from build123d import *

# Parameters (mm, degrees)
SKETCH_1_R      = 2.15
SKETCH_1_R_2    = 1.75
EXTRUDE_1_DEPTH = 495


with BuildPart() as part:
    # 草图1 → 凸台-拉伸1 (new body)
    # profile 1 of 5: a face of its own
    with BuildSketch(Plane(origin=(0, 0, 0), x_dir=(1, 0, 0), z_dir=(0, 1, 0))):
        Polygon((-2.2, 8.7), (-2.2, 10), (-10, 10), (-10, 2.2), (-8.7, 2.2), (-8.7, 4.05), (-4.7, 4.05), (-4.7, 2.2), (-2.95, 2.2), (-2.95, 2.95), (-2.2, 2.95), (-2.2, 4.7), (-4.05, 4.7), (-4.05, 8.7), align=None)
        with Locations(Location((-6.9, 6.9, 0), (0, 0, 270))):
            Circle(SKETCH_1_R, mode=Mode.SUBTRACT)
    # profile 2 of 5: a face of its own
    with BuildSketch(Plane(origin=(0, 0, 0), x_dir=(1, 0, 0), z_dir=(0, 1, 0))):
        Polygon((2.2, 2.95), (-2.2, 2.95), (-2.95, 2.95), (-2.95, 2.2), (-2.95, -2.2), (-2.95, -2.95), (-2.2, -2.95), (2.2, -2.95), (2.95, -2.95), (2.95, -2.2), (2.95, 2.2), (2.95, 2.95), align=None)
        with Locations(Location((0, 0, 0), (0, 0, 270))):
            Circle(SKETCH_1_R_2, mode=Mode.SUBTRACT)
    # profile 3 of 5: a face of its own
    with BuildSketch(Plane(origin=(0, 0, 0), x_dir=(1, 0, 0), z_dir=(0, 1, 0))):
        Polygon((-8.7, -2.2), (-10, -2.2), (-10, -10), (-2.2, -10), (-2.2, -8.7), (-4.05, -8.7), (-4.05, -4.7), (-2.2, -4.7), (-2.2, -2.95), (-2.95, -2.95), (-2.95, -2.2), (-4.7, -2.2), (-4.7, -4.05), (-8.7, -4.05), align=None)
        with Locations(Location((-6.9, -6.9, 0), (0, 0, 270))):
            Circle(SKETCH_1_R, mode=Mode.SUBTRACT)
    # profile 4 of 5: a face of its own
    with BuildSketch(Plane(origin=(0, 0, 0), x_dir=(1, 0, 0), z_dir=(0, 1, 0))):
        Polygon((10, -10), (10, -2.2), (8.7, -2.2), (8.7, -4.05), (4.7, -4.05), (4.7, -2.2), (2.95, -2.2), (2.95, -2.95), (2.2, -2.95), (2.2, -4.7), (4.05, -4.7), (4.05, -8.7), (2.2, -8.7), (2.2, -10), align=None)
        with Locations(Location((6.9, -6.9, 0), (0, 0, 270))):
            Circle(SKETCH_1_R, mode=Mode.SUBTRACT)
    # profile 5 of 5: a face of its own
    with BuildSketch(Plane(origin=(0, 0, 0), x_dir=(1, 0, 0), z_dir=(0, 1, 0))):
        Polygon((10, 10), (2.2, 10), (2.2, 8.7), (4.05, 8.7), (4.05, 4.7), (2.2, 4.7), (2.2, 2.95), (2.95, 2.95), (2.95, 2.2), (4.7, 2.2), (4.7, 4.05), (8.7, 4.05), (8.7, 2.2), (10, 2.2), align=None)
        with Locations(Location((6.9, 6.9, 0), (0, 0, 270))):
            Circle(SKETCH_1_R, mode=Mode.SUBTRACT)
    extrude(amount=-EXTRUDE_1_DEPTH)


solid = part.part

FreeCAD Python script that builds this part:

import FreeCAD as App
import Part
import Sketcher
Q = App.Units.Quantity

doc = App.newDocument("Part")
body = doc.addObject("PartDesign::Body", "Body")

# Sketch on XZ plane
sketch1 = body.newObject("Sketcher::SketchObject", "Sketch")
sketch1.AttachmentSupport = (doc.getObject("XZ_Plane"), [""])
sketch1.MapMode = "FlatFace"
sketch1.addGeometry(Part.LineSegment(App.Vector(-2.2, -8.7, 0), App.Vector(-2.2, -10, 0)), False)
sketch1.addGeometry(Part.LineSegment(App.Vector(-2.2, -10, 0), App.Vector(-10, -10, 0)), False)
sketch1.addGeometry(Part.LineSegment(App.Vector(-10, -10, 0), App.Vector(-10, -2.2, 0)), False)
sketch1.addGeometry(Part.LineSegment(App.Vector(-10, -2.2, 0), App.Vector(-8.7, -2.2, 0)), False)
sketch1.addGeometry(Part.LineSegment(App.Vector(-8.7, -2.2, 0), App.Vector(-8.7, -4, 0)), False)
sketch1.addGeometry(Part.LineSegment(App.Vector(-8.7, -4, 0), App.Vector(-4.7, -4, 0)), False)
sketch1.addGeometry(Part.LineSegment(App.Vector(-4.7, -4, 0), App.Vector(-4.7, -2.2, 0)), False)
sketch1.addGeometry(Part.LineSegment(App.Vector(-4.7, -2.2, 0), App.Vector(-3, -2.2, 0)), False)
sketch1.addGeometry(Part.LineSegment(App.Vector(-3, -2.2, 0), App.Vector(-3, 2.2, 0)), False)
sketch1.addGeometry(Part.LineSegment(App.Vector(-3, 2.2, 0), App.Vector(-4.7, 2.2, 0)), False)
sketch1.addGeometry(Part.LineSegment(App.Vector(-4.7, 2.2, 0), App.Vector(-4.7, 4, 0)), False)
sketch1.addGeometry(Part.LineSegment(App.Vector(-4.7, 4, 0), App.Vector(-8.7, 4, 0)), False)
sketch1.addGeometry(Part.LineSegment(App.Vector(-8.7, 4, 0), App.Vector(-8.7, 2.2, 0)), False)
sketch1.addGeometry(Part.LineSegment(App.Vector(-8.7, 2.2, 0), App.Vector(-10, 2.2, 0)), False)
sketch1.addGeometry(Part.LineSegment(App.Vector(-10, 2.2, 0), App.Vector(-10, 10, 0)), False)
sketch1.addGeometry(Part.LineSegment(App.Vector(-10, 10, 0), App.Vector(-2.2, 10, 0)), False)
sketch1.addGeometry(Part.LineSegment(App.Vector(-2.2, 10, 0), App.Vector(-2.2, 8.7, 0)), False)
sketch1.addGeometry(Part.LineSegment(App.Vector(-2.2, 8.7, 0), App.Vector(-4, 8.7, 0)), False)
sketch1.addGeometry(Part.LineSegment(App.Vector(-4, 8.7, 0), App.Vector(-4, 4.7, 0)), False)
sketch1.addGeometry(Part.LineSegment(App.Vector(-4, 4.7, 0), App.Vector(-2.2, 4.7, 0)), False)
sketch1.addGeometry(Part.LineSegment(App.Vector(-2.2, 4.7, 0), App.Vector(-2.2, 3, 0)), False)
sketch1.addGeometry(Part.LineSegment(App.Vector(-2.2, 3, 0), App.Vector(2.2, 3, 0)), False)
sketch1.addGeometry(Part.LineSegment(App.Vector(2.2, 3, 0), App.Vector(2.2, 4.7, 0)), False)
sketch1.addGeometry(Part.LineSegment(App.Vector(2.2, 4.7, 0), App.Vector(4, 4.7, 0)), False)
sketch1.addGeometry(Part.LineSegment(App.Vector(4, 4.7, 0), App.Vector(4, 8.7, 0)), False)
sketch1.addGeometry(Part.LineSegment(App.Vector(4, 8.7, 0), App.Vector(2.2, 8.7, 0)), False)
sketch1.addGeometry(Part.LineSegment(App.Vector(2.2, 8.7, 0), App.Vector(2.2, 10, 0)), False)
sketch1.addGeometry(Part.LineSegment(App.Vector(2.2, 10, 0), App.Vector(10, 10, 0)), False)
sketch1.addGeometry(Part.LineSegment(App.Vector(10, 10, 0), App.Vector(10, 2.2, 0)), False)
sketch1.addGeometry(Part.LineSegment(App.Vector(10, 2.2, 0), App.Vector(8.7, 2.2, 0)), False)
sketch1.addGeometry(Part.LineSegment(App.Vector(8.7, 2.2, 0), App.Vector(8.7, 4, 0)), False)
sketch1.addGeometry(Part.LineSegment(App.Vector(8.7, 4, 0), App.Vector(4.7, 4, 0)), False)
sketch1.addGeometry(Part.LineSegment(App.Vector(4.7, 4, 0), App.Vector(4.7, 2.2, 0)), False)
sketch1.addGeometry(Part.LineSegment(App.Vector(4.7, 2.2, 0), App.Vector(3, 2.2, 0)), False)
sketch1.addGeometry(Part.LineSegment(App.Vector(3, 2.2, 0), App.Vector(3, -2.2, 0)), False)
sketch1.addGeometry(Part.LineSegment(App.Vector(3, -2.2, 0), App.Vector(4.7, -2.2, 0)), False)
sketch1.addGeometry(Part.LineSegment(App.Vector(4.7, -2.2, 0), App.Vector(4.7, -4, 0)), False)
sketch1.addGeometry(Part.LineSegment(App.Vector(4.7, -4, 0), App.Vector(8.7, -4, 0)), False)
sketch1.addGeometry(Part.LineSegment(App.Vector(8.7, -4, 0), App.Vector(8.7, -2.2, 0)), False)
sketch1.addGeometry(Part.LineSegment(App.Vector(8.7, -2.2, 0), App.Vector(10, -2.2, 0)), False)
sketch1.addGeometry(Part.LineSegment(App.Vector(10, -2.2, 0), App.Vector(10, -10, 0)), False)
sketch1.addGeometry(Part.LineSegment(App.Vector(10, -10, 0), App.Vector(2.2, -10, 0)), False)
sketch1.addGeometry(Part.LineSegment(App.Vector(2.2, -10, 0), App.Vector(2.2, -8.7, 0)), False)
sketch1.addGeometry(Part.LineSegment(App.Vector(2.2, -8.7, 0), App.Vector(4, -8.7, 0)), False)
sketch1.addGeometry(Part.LineSegment(App.Vector(4, -8.7, 0), App.Vector(4, -4.7, 0)), False)
sketch1.addGeometry(Part.LineSegment(App.Vector(4, -4.7, 0), App.Vector(2.2, -4.7, 0)), False)
sketch1.addGeometry(Part.LineSegment(App.Vector(2.2, -4.7, 0), App.Vector(2.2, -3, 0)), False)
sketch1.addGeometry(Part.LineSegment(App.Vector(2.2, -3, 0), App.Vector(-2.2, -3, 0)), False)
sketch1.addGeometry(Part.LineSegment(App.Vector(-2.2, -3, 0), App.Vector(-2.2, -4.7, 0)), False)
sketch1.addGeometry(Part.LineSegment(App.Vector(-2.2, -4.7, 0), App.Vector(-4, -4.7, 0)), False)
sketch1.addGeometry(Part.LineSegment(App.Vector(-4, -4.7, 0), App.Vector(-4, -8.7, 0)), False)
sketch1.addGeometry(Part.LineSegment(App.Vector(-4, -8.7, 0), App.Vector(-2.2, -8.7, 0)), False)
sketch1.addGeometry(Part.Circle(App.Vector(-6.9, -6.9, 0), App.Vector(0, 0, 1), 2.1), False)
sketch1.addGeometry(Part.Circle(App.Vector(0, 0, 0), App.Vector(0, 0, 1), 1.8), False)
sketch1.addGeometry(Part.Circle(App.Vector(6.9, -6.9, 0), App.Vector(0, 0, 1), 2.1), False)
sketch1.addGeometry(Part.Circle(App.Vector(-6.9, 6.9, 0), App.Vector(0, 0, 1), 2.1), False)
sketch1.addGeometry(Part.Circle(App.Vector(6.9, 6.9, 0), App.Vector(0, 0, 1), 2.1), False)
sketch1.addConstraint(Sketcher.Constraint("Coincident", 0, 2, 1, 1))
sketch1.addConstraint(Sketcher.Constraint("Coincident", 1, 2, 2, 1))
sketch1.addConstraint(Sketcher.Constraint("Coincident", 2, 2, 3, 1))
sketch1.addConstraint(Sketcher.Constraint("Coincident", 3, 2, 4, 1))
sketch1.addConstraint(Sketcher.Constraint("Coincident", 4, 2, 5, 1))
sketch1.addConstraint(Sketcher.Constraint("Coincident", 5, 2, 6, 1))
sketch1.addConstraint(Sketcher.Constraint("Coincident", 6, 2, 7, 1))
sketch1.addConstraint(Sketcher.Constraint("Coincident", 7, 2, 8, 1))
sketch1.addConstraint(Sketcher.Constraint("Coincident", 8, 2, 9, 1))
sketch1.addConstraint(Sketcher.Constraint("Coincident", 9, 2, 10, 1))
sketch1.addConstraint(Sketcher.Constraint("Coincident", 10, 2, 11, 1))
sketch1.addConstraint(Sketcher.Constraint("Coincident", 11, 2, 12, 1))
sketch1.addConstraint(Sketcher.Constraint("Coincident", 12, 2, 13, 1))
sketch1.addConstraint(Sketcher.Constraint("Coincident", 13, 2, 14, 1))
sketch1.addConstraint(Sketcher.Constraint("Coincident", 14, 2, 15, 1))
sketch1.addConstraint(Sketcher.Constraint("Coincident", 15, 2, 16, 1))
sketch1.addConstraint(Sketcher.Constraint("Coincident", 16, 2, 17, 1))
sketch1.addConstraint(Sketcher.Constraint("Coincident", 17, 2, 18, 1))
sketch1.addConstraint(Sketcher.Constraint("Coincident", 18, 2, 19, 1))
sketch1.addConstraint(Sketcher.Constraint("Coincident", 19, 2, 20, 1))
sketch1.addConstraint(Sketcher.Constraint("Coincident", 20, 2, 21, 1))
sketch1.addConstraint(Sketcher.Constraint("Coincident", 21, 2, 22, 1))
sketch1.addConstraint(Sketcher.Constraint("Coincident", 22, 2, 23, 1))
sketch1.addConstraint(Sketcher.Constraint("Coincident", 23, 2, 24, 1))
sketch1.addConstraint(Sketcher.Constraint("Coincident", 24, 2, 25, 1))
sketch1.addConstraint(Sketcher.Constraint("Coincident", 25, 2, 26, 1))
sketch1.addConstraint(Sketcher.Constraint("Coincident", 26, 2, 27, 1))
sketch1.addConstraint(Sketcher.Constraint("Coincident", 27, 2, 28, 1))
sketch1.addConstraint(Sketcher.Constraint("Coincident", 28, 2, 29, 1))
sketch1.addConstraint(Sketcher.Constraint("Coincident", 29, 2, 30, 1))
sketch1.addConstraint(Sketcher.Constraint("Coincident", 30, 2, 31, 1))
sketch1.addConstraint(Sketcher.Constraint("Coincident", 31, 2, 32, 1))
sketch1.addConstraint(Sketcher.Constraint("Coincident", 32, 2, 33, 1))
sketch1.addConstraint(Sketcher.Constraint("Coincident", 33, 2, 34, 1))
sketch1.addConstraint(Sketcher.Constraint("Coincident", 34, 2, 35, 1))
sketch1.addConstraint(Sketcher.Constraint("Coincident", 35, 2, 36, 1))
sketch1.addConstraint(Sketcher.Constraint("Coincident", 36, 2, 37, 1))
sketch1.addConstraint(Sketcher.Constraint("Coincident", 37, 2, 38, 1))
sketch1.addConstraint(Sketcher.Constraint("Coincident", 38, 2, 39, 1))
sketch1.addConstraint(Sketcher.Constraint("Coincident", 39, 2, 40, 1))
sketch1.addConstraint(Sketcher.Constraint("Coincident", 40, 2, 41, 1))
sketch1.addConstraint(Sketcher.Constraint("Coincident", 41, 2, 42, 1))
sketch1.addConstraint(Sketcher.Constraint("Coincident", 42, 2, 43, 1))
sketch1.addConstraint(Sketcher.Constraint("Coincident", 43, 2, 44, 1))
sketch1.addConstraint(Sketcher.Constraint("Coincident", 44, 2, 45, 1))
sketch1.addConstraint(Sketcher.Constraint("Coincident", 45, 2, 46, 1))
sketch1.addConstraint(Sketcher.Constraint("Coincident", 46, 2, 47, 1))
sketch1.addConstraint(Sketcher.Constraint("Coincident", 47, 2, 48, 1))
sketch1.addConstraint(Sketcher.Constraint("Coincident", 48, 2, 49, 1))
sketch1.addConstraint(Sketcher.Constraint("Coincident", 49, 2, 50, 1))
sketch1.addConstraint(Sketcher.Constraint("Coincident", 50, 2, 51, 1))
sketch1.addConstraint(Sketcher.Constraint("Coincident", 51, 2, 0, 1))
sketch1.addConstraint(Sketcher.Constraint("Vertical", 0))
sketch1.addConstraint(Sketcher.Constraint("Horizontal", 1))
sketch1.addConstraint(Sketcher.Constraint("Vertical", 2))
sketch1.addConstraint(Sketcher.Constraint("Horizontal", 3))
sketch1.addConstraint(Sketcher.Constraint("Vertical", 4))
sketch1.addConstraint(Sketcher.Constraint("Horizontal", 5))
sketch1.addConstraint(Sketcher.Constraint("Vertical", 6))
sketch1.addConstraint(Sketcher.Constraint("Horizontal", 7))
sketch1.addConstraint(Sketcher.Constraint("Vertical", 8))
sketch1.addConstraint(Sketcher.Constraint("Horizontal", 9))
sketch1.addConstraint(Sketcher.Constraint("Vertical", 10))
sketch1.addConstraint(Sketcher.Constraint("Horizontal", 11))
sketch1.addConstraint(Sketcher.Constraint("Vertical", 12))
sketch1.addConstraint(Sketcher.Constraint("Horizontal", 13))
sketch1.addConstraint(Sketcher.Constraint("Vertical", 14))
sketch1.addConstraint(Sketcher.Constraint("Horizontal", 15))
sketch1.addConstraint(Sketcher.Constraint("Vertical", 16))
sketch1.addConstraint(Sketcher.Constraint("Horizontal", 17))
sketch1.addConstraint(Sketcher.Constraint("Vertical", 18))
sketch1.addConstraint(Sketcher.Constraint("Horizontal", 19))
sketch1.addConstraint(Sketcher.Constraint("Vertical", 20))
sketch1.addConstraint(Sketcher.Constraint("Horizontal", 21))
sketch1.addConstraint(Sketcher.Constraint("Vertical", 22))
sketch1.addConstraint(Sketcher.Constraint("Horizontal", 23))
sketch1.addConstraint(Sketcher.Constraint("Vertical", 24))
sketch1.addConstraint(Sketcher.Constraint("Horizontal", 25))
sketch1.addConstraint(Sketcher.Constraint("Vertical", 26))
sketch1.addConstraint(Sketcher.Constraint("Horizontal", 27))
sketch1.addConstraint(Sketcher.Constraint("Vertical", 28))
sketch1.addConstraint(Sketcher.Constraint("Horizontal", 29))
sketch1.addConstraint(Sketcher.Constraint("Vertical", 30))
sketch1.addConstraint(Sketcher.Constraint("Horizontal", 31))
sketch1.addConstraint(Sketcher.Constraint("Vertical", 32))
sketch1.addConstraint(Sketcher.Constraint("Horizontal", 33))
sketch1.addConstraint(Sketcher.Constraint("Vertical", 34))
sketch1.addConstraint(Sketcher.Constraint("Horizontal", 35))
sketch1.addConstraint(Sketcher.Constraint("Vertical", 36))
sketch1.addConstraint(Sketcher.Constraint("Horizontal", 37))
sketch1.addConstraint(Sketcher.Constraint("Vertical", 38))
sketch1.addConstraint(Sketcher.Constraint("Horizontal", 39))
sketch1.addConstraint(Sketcher.Constraint("Vertical", 40))
sketch1.addConstraint(Sketcher.Constraint("Horizontal", 41))
sketch1.addConstraint(Sketcher.Constraint("Vertical", 42))
sketch1.addConstraint(Sketcher.Constraint("Horizontal", 43))
sketch1.addConstraint(Sketcher.Constraint("Vertical", 44))
sketch1.addConstraint(Sketcher.Constraint("Horizontal", 45))
sketch1.addConstraint(Sketcher.Constraint("Vertical", 46))
sketch1.addConstraint(Sketcher.Constraint("Horizontal", 47))
sketch1.addConstraint(Sketcher.Constraint("Vertical", 48))
sketch1.addConstraint(Sketcher.Constraint("Horizontal", 49))
sketch1.addConstraint(Sketcher.Constraint("Vertical", 50))
sketch1.addConstraint(Sketcher.Constraint("Horizontal", 51))
sketch1.addConstraint(Sketcher.Constraint("Coincident", 53, 3, -1, 1))
sketch1.addConstraint(Sketcher.Constraint("Equal", 52, 54))
sketch1.addConstraint(Sketcher.Constraint("Equal", 54, 55))
sketch1.addConstraint(Sketcher.Constraint("Equal", 55, 56))
sketch1.addConstraint(Sketcher.Constraint("Symmetric", 54, 3, 55, 3, -1, 1))
sketch1.addConstraint(Sketcher.Constraint("Symmetric", 52, 3, 56, 3, -1, 1))
sketch1.addConstraint(Sketcher.Constraint("Symmetric", 0, 2, 26, 2, -1, 1))
sketch1.addConstraint(Sketcher.Constraint("Symmetric", 2, 2, 28, 2, -1, 1))
sketch1.addConstraint(Sketcher.Constraint("Symmetric", 4, 2, 30, 2, -1, 1))
sketch1.addConstraint(Sketcher.Constraint("Symmetric", 6, 2, 32, 2, -1, 1))
sketch1.addConstraint(Sketcher.Constraint("Symmetric", 8, 2, 34, 2, -1, 1))
sketch1.addConstraint(Sketcher.Constraint("Symmetric", 10, 2, 36, 2, -1, 1))
sketch1.addConstraint(Sketcher.Constraint("Symmetric", 12, 2, 38, 2, -1, 1))
sketch1.addConstraint(Sketcher.Constraint("Symmetric", 14, 2, 40, 2, -1, 1))
sketch1.addConstraint(Sketcher.Constraint("Symmetric", 16, 2, 42, 2, -1, 1))
sketch1.addConstraint(Sketcher.Constraint("Symmetric", 18, 2, 44, 2, -1, 1))
sketch1.addConstraint(Sketcher.Constraint("Symmetric", 20, 2, 46, 2, -1, 1))
sketch1.addConstraint(Sketcher.Constraint("Symmetric", 22, 2, 48, 2, -1, 1))
sketch1.addConstraint(Sketcher.Constraint("Symmetric", 24, 2, 50, 2, -1, 1))
sketch1.addConstraint(Sketcher.Constraint("Symmetric", 52, 3, 54, 3, -2))
sketch1.addConstraint(Sketcher.Constraint("Symmetric", 19, 2, 22, 2, -2))
sketch1.addConstraint(Sketcher.Constraint("Symmetric", 17, 2, 24, 2, -2))
sketch1.addConstraint(Sketcher.Constraint("Symmetric", 15, 2, 26, 2, -2))
sketch1.addConstraint(Sketcher.Constraint("Symmetric", 13, 2, 28, 2, -2))
sketch1.addConstraint(Sketcher.Constraint("Symmetric", 11, 2, 30, 2, -2))
sketch1.addConstraint(Sketcher.Constraint("Symmetric", 9, 2, 32, 2, -2))
sketch1.addConstraint(Sketcher.Constraint("Horizontal", 3, 2, 6, 2))
sketch1.addConstraint(Sketcher.Constraint("Vertical", 16, 2, 19, 2))
sketch1.addConstraint(Sketcher.Constraint("Equal", 39, 0))
sketch1.addConstraint(Sketcher.Constraint("Equal", 41, 2))
sketch1.addConstraint(Sketcher.Constraint("Equal", 51, 4))
sketch1.addConstraint(Sketcher.Constraint("Equal", 47, 8))
sketch1.addConstraint(Sketcher.Constraint("Equal", 37, 18))
sketch1.addConstraint(Sketcher.Constraint("Equal", 35, 20))
sketch1.addConstraint(Sketcher.Constraint("Diameter", 52, Q("4.3 mm")))
sketch1.addConstraint(Sketcher.Constraint("Diameter", 53, Q("3.5 mm")))
sketch1.addConstraint(Sketcher.Constraint("DistanceX", 5, 1, 5, 2, Q("4 mm")))
sketch1.addConstraint(Sketcher.Constraint("DistanceX", 1, 2, 1, 1, Q("7.8 mm")))
sketch1.addConstraint(Sketcher.Constraint("DistanceX", 3, 1, 3, 2, Q("1.3 mm")))
sketch1.addConstraint(Sketcher.Constraint("DistanceX", 21, 1, 21, 2, Q("4.4 mm")))
sketch1.addConstraint(Sketcher.Constraint("DistanceX", 7, 1, 7, 2, Q("1.75 mm")))
sketch1.addConstraint(Sketcher.Constraint("DistanceX", 17, 2, 17, 1, Q("1.85 mm")))
sketch1.addConstraint(Sketcher.Constraint("DistanceX", 52, 3, -1, 1, Q("6.9 mm")))
sketch1.addConstraint(Sketcher.Constraint("DistanceY", 52, 3, -1, 1, Q("6.9 mm")))
pad1 = body.newObject("PartDesign::Pad", "Pad")
pad1.Profile = sketch1
pad1.Length = 495

doc.recompute()
